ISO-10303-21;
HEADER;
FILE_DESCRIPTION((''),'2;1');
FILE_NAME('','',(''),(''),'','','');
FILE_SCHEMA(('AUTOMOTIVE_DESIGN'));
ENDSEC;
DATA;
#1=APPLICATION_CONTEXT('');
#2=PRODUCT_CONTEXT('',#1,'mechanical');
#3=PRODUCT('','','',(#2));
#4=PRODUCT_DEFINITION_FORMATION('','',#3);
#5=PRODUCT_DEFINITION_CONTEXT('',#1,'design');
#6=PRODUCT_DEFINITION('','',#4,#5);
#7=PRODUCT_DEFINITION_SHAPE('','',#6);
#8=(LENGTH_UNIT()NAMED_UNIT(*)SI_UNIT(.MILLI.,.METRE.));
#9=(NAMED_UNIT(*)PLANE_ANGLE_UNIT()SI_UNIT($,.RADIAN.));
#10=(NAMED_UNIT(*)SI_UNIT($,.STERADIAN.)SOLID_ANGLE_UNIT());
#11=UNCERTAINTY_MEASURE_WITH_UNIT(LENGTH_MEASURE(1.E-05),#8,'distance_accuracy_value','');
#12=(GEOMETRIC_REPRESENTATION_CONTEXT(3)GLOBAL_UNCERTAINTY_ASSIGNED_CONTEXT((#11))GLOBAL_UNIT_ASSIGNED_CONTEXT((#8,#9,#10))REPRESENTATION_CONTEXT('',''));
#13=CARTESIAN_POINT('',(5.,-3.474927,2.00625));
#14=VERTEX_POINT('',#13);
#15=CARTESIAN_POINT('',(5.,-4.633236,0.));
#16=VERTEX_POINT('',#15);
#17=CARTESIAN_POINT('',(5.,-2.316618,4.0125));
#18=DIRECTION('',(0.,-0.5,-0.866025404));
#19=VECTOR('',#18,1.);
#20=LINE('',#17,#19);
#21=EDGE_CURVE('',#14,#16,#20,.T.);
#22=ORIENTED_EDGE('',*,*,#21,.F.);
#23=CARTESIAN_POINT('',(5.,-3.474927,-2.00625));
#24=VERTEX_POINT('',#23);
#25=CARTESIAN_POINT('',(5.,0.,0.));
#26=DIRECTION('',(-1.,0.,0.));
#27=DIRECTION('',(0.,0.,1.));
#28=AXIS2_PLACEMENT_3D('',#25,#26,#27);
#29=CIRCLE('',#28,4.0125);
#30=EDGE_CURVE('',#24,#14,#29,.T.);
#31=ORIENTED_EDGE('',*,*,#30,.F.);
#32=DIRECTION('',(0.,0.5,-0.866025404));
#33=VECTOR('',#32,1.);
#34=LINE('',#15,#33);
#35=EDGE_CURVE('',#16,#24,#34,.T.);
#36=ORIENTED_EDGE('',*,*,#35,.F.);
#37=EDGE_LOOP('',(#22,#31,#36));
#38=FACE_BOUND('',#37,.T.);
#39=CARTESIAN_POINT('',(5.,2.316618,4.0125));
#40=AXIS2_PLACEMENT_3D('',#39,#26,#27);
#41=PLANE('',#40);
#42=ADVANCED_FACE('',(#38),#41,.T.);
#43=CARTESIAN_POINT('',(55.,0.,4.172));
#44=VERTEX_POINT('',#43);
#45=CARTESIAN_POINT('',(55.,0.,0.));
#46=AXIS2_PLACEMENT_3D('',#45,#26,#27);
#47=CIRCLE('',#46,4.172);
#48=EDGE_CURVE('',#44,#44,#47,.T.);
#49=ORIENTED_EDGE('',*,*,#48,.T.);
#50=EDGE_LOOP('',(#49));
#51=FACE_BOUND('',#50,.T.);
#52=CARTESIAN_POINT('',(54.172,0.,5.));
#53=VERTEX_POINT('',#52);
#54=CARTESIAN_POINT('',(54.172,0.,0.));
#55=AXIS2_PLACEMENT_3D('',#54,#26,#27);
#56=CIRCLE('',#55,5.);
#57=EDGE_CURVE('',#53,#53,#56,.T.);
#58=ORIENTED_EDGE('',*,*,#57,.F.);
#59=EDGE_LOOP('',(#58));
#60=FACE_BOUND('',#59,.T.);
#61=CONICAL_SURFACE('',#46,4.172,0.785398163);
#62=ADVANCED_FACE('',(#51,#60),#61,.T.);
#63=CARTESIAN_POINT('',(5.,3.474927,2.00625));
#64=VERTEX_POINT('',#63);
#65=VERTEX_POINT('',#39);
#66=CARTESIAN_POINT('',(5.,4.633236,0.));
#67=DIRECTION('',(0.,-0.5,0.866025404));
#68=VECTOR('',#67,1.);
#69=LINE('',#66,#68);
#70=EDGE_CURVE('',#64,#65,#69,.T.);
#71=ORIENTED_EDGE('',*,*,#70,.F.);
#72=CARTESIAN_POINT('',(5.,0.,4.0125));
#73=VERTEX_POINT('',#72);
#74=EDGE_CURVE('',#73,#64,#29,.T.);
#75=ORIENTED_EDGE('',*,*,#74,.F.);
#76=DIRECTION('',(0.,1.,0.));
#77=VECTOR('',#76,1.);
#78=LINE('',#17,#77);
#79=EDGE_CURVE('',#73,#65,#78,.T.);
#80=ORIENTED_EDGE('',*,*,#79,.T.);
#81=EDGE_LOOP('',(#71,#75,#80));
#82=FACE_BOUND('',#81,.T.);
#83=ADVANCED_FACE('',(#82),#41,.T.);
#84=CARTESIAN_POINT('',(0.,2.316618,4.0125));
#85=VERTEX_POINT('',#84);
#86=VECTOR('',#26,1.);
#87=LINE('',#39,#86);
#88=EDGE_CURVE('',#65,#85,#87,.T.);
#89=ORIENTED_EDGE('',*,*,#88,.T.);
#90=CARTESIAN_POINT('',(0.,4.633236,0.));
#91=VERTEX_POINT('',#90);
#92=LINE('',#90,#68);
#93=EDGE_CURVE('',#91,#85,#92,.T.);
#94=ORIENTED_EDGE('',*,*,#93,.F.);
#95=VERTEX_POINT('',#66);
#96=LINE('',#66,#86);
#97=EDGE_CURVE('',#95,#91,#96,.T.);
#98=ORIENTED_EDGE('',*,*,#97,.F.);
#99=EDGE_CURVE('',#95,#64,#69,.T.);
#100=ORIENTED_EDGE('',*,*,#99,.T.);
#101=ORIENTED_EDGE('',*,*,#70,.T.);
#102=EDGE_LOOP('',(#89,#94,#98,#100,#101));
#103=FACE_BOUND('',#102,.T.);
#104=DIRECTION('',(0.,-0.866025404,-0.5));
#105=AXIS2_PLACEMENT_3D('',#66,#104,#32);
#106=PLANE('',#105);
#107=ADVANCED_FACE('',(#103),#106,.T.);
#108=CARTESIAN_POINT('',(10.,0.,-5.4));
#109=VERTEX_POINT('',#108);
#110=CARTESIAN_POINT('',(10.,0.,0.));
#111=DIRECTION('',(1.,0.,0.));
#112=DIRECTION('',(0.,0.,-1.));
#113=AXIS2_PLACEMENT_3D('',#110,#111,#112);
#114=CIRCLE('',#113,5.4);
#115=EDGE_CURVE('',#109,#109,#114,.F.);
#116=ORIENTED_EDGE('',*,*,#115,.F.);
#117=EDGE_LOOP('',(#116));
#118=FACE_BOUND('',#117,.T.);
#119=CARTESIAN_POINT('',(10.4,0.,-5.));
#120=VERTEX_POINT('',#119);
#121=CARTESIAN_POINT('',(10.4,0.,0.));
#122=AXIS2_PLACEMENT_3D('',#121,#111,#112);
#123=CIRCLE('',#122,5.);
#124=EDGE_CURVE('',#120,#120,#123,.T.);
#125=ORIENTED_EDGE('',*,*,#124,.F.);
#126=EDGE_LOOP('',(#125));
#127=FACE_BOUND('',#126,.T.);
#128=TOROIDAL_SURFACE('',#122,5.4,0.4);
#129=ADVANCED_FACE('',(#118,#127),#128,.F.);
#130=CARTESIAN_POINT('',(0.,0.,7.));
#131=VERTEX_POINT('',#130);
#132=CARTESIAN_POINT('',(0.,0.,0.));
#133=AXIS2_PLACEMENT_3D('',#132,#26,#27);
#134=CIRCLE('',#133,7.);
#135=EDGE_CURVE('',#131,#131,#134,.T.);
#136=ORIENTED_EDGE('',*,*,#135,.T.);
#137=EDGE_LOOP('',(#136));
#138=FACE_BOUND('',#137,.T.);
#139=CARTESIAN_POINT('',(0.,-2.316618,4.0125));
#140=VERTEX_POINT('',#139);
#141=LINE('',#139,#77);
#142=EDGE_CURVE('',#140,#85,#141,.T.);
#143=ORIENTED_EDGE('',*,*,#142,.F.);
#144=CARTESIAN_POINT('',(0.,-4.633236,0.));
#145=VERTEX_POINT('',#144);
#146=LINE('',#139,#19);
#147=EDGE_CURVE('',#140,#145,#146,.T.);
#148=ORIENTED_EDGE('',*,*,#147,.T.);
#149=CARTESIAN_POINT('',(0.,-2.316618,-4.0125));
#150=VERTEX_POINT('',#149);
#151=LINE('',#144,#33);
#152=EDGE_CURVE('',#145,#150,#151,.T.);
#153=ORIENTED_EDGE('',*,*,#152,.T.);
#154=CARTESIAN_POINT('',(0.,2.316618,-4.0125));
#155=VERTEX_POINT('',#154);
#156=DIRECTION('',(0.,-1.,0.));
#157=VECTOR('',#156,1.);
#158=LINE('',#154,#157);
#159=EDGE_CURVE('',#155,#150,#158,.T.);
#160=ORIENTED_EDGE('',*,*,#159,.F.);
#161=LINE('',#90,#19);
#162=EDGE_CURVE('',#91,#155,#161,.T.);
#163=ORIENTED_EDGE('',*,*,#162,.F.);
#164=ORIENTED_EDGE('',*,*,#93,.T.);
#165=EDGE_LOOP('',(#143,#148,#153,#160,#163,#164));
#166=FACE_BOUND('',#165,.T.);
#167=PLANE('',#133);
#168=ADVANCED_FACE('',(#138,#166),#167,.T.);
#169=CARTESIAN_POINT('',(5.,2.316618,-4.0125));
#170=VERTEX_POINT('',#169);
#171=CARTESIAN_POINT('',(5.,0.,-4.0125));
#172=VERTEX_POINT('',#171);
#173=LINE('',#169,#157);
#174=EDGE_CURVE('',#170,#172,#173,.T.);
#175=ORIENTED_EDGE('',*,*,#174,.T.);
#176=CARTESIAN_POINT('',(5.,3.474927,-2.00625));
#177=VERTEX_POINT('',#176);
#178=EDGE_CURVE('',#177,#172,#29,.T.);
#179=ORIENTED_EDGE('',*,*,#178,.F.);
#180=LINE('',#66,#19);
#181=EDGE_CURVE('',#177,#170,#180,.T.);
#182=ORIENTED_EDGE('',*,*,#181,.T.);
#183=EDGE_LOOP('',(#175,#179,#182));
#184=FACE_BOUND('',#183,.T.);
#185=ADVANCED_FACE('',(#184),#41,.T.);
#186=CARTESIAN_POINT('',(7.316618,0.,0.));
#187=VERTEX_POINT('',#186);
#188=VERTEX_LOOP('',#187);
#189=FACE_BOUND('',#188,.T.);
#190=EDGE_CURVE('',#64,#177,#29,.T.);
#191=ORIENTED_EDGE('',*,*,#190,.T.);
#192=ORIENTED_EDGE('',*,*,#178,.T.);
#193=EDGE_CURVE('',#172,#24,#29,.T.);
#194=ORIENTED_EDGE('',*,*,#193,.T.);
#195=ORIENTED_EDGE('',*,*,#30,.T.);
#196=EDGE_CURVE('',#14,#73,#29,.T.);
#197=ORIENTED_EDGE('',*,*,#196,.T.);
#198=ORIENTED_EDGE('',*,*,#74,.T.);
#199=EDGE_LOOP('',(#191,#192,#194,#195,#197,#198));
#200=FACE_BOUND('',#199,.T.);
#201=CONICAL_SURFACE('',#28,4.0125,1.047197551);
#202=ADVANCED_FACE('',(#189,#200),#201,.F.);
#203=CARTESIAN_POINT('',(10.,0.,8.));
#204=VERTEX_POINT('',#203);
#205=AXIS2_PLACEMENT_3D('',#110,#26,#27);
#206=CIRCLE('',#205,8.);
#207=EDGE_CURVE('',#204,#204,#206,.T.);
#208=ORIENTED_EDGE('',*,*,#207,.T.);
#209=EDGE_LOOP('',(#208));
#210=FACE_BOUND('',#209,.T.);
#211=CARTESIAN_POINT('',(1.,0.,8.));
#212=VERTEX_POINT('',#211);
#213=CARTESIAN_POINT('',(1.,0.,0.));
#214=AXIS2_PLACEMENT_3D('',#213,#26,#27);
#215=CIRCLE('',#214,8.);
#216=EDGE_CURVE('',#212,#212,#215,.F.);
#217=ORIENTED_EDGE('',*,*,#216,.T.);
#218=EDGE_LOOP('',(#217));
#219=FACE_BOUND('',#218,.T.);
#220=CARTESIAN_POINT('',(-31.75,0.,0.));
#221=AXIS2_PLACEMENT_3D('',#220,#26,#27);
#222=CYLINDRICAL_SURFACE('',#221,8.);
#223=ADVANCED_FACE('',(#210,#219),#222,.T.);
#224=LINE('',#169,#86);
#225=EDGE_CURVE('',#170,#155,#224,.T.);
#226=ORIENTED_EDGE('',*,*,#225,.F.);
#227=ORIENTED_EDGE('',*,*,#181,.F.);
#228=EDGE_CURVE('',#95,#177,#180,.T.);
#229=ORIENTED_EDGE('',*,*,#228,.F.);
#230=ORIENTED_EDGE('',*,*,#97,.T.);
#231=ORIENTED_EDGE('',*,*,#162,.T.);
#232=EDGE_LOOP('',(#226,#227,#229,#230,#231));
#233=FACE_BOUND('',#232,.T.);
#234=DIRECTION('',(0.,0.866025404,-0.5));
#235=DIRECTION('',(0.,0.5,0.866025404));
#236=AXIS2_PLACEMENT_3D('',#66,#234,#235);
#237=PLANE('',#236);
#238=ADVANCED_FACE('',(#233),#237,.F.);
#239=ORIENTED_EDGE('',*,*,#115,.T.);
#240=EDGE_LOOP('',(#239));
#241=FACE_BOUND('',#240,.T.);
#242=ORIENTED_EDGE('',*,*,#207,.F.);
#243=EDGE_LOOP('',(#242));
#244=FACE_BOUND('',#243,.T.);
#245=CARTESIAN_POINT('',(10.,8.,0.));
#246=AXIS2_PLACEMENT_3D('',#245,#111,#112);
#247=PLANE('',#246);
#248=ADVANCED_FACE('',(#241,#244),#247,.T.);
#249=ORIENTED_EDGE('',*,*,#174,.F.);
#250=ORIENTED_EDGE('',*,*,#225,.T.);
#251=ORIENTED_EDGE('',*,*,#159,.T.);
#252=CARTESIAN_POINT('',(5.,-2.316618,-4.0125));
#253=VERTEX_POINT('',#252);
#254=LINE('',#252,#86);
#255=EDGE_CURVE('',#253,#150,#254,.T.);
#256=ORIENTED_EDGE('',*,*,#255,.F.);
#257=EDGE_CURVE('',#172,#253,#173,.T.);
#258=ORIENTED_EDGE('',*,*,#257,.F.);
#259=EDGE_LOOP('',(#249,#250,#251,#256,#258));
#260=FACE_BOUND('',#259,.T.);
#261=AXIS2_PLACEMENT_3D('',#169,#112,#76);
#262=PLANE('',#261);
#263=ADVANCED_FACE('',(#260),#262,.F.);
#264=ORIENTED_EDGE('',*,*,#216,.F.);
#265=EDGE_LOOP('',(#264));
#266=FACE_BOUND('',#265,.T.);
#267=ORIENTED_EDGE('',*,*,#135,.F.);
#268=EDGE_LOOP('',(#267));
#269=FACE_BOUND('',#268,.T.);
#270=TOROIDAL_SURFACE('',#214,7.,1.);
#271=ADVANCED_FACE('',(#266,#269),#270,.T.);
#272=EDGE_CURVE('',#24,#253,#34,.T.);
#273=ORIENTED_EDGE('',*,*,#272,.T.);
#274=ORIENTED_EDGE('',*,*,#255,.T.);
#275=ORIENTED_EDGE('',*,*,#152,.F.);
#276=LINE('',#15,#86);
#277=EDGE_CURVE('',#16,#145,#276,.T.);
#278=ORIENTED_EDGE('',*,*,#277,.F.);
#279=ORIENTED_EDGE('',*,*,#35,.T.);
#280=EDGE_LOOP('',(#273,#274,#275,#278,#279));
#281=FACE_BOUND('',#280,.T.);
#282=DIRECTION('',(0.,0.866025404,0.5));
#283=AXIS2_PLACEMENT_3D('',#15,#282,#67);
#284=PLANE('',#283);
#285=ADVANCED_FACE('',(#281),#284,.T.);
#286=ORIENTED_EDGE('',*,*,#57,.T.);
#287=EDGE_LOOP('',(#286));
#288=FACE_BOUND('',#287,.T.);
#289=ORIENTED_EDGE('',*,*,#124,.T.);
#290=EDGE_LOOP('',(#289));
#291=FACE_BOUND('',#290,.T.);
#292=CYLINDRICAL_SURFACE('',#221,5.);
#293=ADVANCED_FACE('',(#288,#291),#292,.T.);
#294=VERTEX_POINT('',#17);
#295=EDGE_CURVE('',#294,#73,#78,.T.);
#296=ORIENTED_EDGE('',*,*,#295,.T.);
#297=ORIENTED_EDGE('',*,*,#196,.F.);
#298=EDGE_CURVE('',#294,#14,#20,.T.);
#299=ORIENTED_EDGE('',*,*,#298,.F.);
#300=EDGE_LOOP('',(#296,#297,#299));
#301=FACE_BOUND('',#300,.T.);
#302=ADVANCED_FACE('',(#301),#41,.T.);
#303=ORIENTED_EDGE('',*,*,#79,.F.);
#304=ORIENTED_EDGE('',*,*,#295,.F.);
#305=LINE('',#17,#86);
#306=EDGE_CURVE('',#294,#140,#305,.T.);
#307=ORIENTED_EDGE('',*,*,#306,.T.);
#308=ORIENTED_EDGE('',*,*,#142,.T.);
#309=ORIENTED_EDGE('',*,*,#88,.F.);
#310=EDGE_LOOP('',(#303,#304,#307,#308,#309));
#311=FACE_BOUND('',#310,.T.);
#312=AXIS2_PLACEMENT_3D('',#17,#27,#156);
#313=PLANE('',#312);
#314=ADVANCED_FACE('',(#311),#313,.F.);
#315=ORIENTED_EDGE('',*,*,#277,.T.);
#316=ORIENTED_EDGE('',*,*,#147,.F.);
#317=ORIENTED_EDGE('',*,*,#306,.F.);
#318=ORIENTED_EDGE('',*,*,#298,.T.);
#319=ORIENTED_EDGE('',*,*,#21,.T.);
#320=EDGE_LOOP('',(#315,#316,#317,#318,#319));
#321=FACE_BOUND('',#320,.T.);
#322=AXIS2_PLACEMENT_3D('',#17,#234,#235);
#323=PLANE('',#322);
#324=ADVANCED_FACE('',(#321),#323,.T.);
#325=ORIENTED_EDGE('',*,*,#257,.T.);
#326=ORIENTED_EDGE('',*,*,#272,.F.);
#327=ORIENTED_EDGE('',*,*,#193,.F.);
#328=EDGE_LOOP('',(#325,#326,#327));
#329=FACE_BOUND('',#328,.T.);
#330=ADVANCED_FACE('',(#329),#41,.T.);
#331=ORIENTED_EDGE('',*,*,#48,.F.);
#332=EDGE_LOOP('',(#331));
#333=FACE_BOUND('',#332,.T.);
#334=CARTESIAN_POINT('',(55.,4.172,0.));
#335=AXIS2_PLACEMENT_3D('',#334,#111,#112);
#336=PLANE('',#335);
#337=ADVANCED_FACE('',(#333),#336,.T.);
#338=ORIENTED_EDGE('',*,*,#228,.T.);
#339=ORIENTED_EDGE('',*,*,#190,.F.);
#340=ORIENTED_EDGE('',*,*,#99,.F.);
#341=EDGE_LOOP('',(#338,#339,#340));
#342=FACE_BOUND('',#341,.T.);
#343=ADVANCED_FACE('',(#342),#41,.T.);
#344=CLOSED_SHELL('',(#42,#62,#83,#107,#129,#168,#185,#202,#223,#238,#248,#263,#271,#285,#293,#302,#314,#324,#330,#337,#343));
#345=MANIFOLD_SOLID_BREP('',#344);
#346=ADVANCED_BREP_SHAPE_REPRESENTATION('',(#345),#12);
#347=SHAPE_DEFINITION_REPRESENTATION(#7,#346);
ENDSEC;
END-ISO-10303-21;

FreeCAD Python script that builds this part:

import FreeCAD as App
import Part
import Sketcher
from FreeCAD import Vector
Q = App.Units.Quantity


def edges_at(feature, points):
    """Names of the edges that pass closest to the given points."""
    edges = feature.Shape.Edges
    near = lambda p: min(range(len(edges)), key=lambda i: edges[i].distToShape(Part.Vertex(*p))[0])
    return sorted({f"Edge{near(p) + 1}" for p in points})


def add_polygon(sketch, points):
    """Adds a closed chain of lines whose ends are joined by coincident constraints."""
    first, n = sketch.GeometryCount, len(points)
    for a, b in zip(points, points[1:] + points[:1]):
        sketch.addGeometry(Part.LineSegment(App.Vector(*a, 0), App.Vector(*b, 0)), False)
    for i in range(n):
        sketch.addConstraint(Sketcher.Constraint("Coincident", first + i, 2, first + (i + 1) % n, 1))

doc = App.newDocument("Part")
body = doc.addObject("PartDesign::Body", "Body")

sketch1 = body.newObject("Sketcher::SketchObject", "Sketch")
sketch1.AttachmentSupport = (doc.getObject("XY_Plane"), [""])
sketch1.MapMode = "FlatFace"
add_polygon(sketch1, [(0, 8), (0, 0), (55, 0), (55, 4.172), (54.172, 5), (10, 5), (10, 8)])
sketch1.addConstraint(Sketcher.Constraint("Vertical", 0))
sketch1.addConstraint(Sketcher.Constraint("Horizontal", 1))
sketch1.addConstraint(Sketcher.Constraint("Vertical", 2))
sketch1.addConstraint(Sketcher.Constraint("Horizontal", 4))
sketch1.addConstraint(Sketcher.Constraint("Vertical", 5))
sketch1.addConstraint(Sketcher.Constraint("Horizontal", 6))
sketch1.addConstraint(Sketcher.Constraint("Coincident", 0, 2, -1, 1))
sketch1.addConstraint(Sketcher.Constraint("DistanceX", 1, 1, 1, 2, Q("55 mm")))
sketch1.addConstraint(Sketcher.Constraint("DistanceX", 6, 2, 6, 1, Q("10 mm")))
sketch1.addConstraint(Sketcher.Constraint("DistanceY", 0, 2, 0, 1, Q("8 mm")))
sketch1.addConstraint(Sketcher.Constraint("DistanceY", 5, 1, 5, 2, Q("3 mm")))
sketch1.addConstraint(Sketcher.Constraint("Angle", 3, Q("135 deg")))
sketch1.addConstraint(Sketcher.Constraint("DistanceX", 4, 2, 4, 1, Q("44.172 mm")))
revolution = body.newObject("PartDesign::Revolution", "Revolution")
revolution.Profile = sketch1
revolution.ReferenceAxis = (sketch1, ["H_Axis"])
revolution.Angle = 360
doc.recompute()

fillet = body.newObject("PartDesign::Fillet", "Fillet")
fillet.Base = (revolution, edges_at(revolution, [(10, -5, 0)]))
fillet.Radius = 0.4
doc.recompute()

fillet2 = body.newObject("PartDesign::Fillet", "Fillet001")
fillet2.Base = (fillet, edges_at(fillet, [(0, -8, 0)]))
fillet2.Radius = 1

sketch2 = body.newObject("Sketcher::SketchObject", "Sketch001")
sketch2.AttachmentSupport = (doc.getObject("XY_Plane"), [""])
sketch2.MapMode = "FlatFace"
add_polygon(sketch2, [(5, 4.0125), (0, 4.0125), (0, 0), (7.316618, 0)])
sketch2.addConstraint(Sketcher.Constraint("Horizontal", 0))
sketch2.addConstraint(Sketcher.Constraint("Vertical", 1))
sketch2.addConstraint(Sketcher.Constraint("Horizontal", 2))
sketch2.addConstraint(Sketcher.Constraint("Coincident", 1, 2, -1, 1))
sketch2.addConstraint(Sketcher.Constraint("DistanceX", 0, 2, 0, 1, Q("5 mm")))
sketch2.addConstraint(Sketcher.Constraint("Angle", 3, Q("120 deg")))
sketch2.addConstraint(Sketcher.Constraint("DistanceY", 1, 2, 1, 1, Q("4.0125 mm")))
groove = body.newObject("PartDesign::Groove", "Groove")
groove.Profile = sketch2
groove.ReferenceAxis = (sketch2, ["H_Axis"])
groove.Angle = 360

sketch3 = body.newObject("Sketcher::SketchObject", "Sketch002")
sketch3.AttachmentSupport = (doc.getObject("YZ_Plane"), [""])
sketch3.MapMode = "FlatFace"
add_polygon(sketch3, [(4.633236, 0), (2.316618, -4.0125), (-2.316618, -4.0125), (-4.633236, 0), (-2.316618, 4.0125), (2.316618, 4.0125)])
sketch3.addConstraint(Sketcher.Constraint("Horizontal", 1))
sketch3.addConstraint(Sketcher.Constraint("Horizontal", 4))
sketch3.addConstraint(Sketcher.Constraint("Symmetric", 0, 2, 3, 2, -1, 1))
sketch3.addConstraint(Sketcher.Constraint("Symmetric", 2, 2, 5, 2, -1, 1))
sketch3.addConstraint(Sketcher.Constraint("PointOnObject", 2, 2, -1))
sketch3.addConstraint(Sketcher.Constraint("Parallel", 2, 5))
sketch3.addConstraint(Sketcher.Constraint("Vertical", 1, 2, 3, 2))
sketch3.addConstraint(Sketcher.Constraint("Angle", 0, Q("-120 deg")))
sketch3.addConstraint(Sketcher.Constraint("DistanceY", 1, 2, 3, 2, Q("8.025 mm")))
sketch3.addConstraint(Sketcher.Constraint("DistanceX", 1, 2, 1, 1, Q("4.633236 mm")))
pocket1 = body.newObject("PartDesign::Pocket", "Pocket")
pocket1.Profile = sketch3
pocket1.Length = 5
pocket1.Reversed = True

doc.recompute()
